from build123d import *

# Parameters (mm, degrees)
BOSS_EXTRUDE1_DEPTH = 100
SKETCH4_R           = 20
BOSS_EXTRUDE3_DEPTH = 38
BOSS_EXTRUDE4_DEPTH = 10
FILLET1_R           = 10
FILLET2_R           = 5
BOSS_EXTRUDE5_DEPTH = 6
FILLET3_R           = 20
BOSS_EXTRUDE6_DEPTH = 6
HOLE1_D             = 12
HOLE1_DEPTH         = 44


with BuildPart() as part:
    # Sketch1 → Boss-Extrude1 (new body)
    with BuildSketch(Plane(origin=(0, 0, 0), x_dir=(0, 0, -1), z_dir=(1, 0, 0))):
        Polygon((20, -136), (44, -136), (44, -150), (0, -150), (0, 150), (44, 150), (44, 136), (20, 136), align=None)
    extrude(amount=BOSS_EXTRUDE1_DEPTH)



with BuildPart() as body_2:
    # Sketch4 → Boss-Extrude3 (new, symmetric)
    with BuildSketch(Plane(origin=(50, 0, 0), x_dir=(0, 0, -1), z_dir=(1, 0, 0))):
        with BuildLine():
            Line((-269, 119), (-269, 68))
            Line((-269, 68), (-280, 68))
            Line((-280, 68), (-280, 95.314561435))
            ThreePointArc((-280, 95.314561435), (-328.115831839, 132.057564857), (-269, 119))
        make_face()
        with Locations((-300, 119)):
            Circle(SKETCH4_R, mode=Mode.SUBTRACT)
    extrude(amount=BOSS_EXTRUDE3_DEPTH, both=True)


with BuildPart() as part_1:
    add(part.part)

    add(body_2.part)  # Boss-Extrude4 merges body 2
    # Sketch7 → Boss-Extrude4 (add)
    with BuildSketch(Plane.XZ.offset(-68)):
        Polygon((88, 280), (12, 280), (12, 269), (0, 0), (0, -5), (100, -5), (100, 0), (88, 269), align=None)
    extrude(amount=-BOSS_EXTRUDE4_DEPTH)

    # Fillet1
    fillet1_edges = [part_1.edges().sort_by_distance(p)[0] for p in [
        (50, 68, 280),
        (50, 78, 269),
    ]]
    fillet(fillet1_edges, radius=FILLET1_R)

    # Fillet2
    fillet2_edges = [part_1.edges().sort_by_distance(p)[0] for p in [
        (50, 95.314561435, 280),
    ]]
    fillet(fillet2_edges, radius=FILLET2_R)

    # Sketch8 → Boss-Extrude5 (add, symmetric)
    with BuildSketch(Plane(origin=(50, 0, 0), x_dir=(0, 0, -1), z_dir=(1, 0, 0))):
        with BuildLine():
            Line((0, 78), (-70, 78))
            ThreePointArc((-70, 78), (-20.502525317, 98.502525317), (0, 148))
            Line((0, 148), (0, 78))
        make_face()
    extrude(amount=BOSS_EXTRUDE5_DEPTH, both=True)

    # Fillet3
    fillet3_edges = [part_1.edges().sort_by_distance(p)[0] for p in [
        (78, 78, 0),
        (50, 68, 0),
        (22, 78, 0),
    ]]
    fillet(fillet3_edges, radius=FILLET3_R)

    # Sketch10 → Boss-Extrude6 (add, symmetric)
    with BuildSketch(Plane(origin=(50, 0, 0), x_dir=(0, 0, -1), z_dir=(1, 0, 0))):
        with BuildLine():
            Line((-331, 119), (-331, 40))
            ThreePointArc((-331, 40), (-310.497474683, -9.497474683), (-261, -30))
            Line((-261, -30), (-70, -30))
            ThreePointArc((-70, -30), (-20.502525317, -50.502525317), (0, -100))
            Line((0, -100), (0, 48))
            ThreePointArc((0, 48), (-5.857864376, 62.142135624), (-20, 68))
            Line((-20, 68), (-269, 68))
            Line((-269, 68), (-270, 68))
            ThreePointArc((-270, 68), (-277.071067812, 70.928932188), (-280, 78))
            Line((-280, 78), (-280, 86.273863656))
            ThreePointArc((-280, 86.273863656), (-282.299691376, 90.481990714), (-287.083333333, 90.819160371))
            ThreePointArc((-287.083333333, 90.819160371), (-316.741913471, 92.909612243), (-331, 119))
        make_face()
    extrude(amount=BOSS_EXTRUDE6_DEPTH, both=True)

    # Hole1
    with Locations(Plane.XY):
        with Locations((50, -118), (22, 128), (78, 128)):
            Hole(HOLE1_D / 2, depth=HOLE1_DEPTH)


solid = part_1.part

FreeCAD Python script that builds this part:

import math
import FreeCAD as App
import Part
import Sketcher

V = App.Vector


def edges_at(feature, points):
    """Names of the edges that pass closest to the given points."""
    edges = feature.Shape.Edges
    near = lambda p: min(range(len(edges)), key=lambda i: edges[i].distToShape(Part.Vertex(*p))[0])
    return sorted({f"Edge{near(p) + 1}" for p in points})

doc = App.newDocument("Part")
body = doc.addObject("PartDesign::Body", "Body")

# Sketch on YZ plane
sketch1 = body.newObject("Sketcher::SketchObject", "Sketch")
sketch1.AttachmentSupport = (doc.getObject("YZ_Plane"), [""])
sketch1.MapMode = "FlatFace"
sketch1.addGeometry([
    Part.LineSegment(V(-136, -44, 0), V(-136, -20, 0)),  # 0
    Part.LineSegment(V(-136, -20, 0), V(136, -20, 0)),  # 1
    Part.LineSegment(V(136, -20, 0), V(136, -44, 0)),  # 2
    Part.LineSegment(V(136, -44, 0), V(150, -44, 0)),  # 3
    Part.LineSegment(V(150, -44, 0), V(150, 0, 0)),  # 4
    Part.LineSegment(V(150, 0, 0), V(-150, 0, 0)),  # 5
    Part.LineSegment(V(-150, 0, 0), V(-150, -44, 0)),  # 6
    Part.LineSegment(V(-150, -44, 0), V(-136, -44, 0)),  # 7
], False)
sketch1.addConstraint([
    Sketcher.Constraint("Coincident", 0, 2, 1, 1),
    Sketcher.Constraint("Coincident", 1, 2, 2, 1),
    Sketcher.Constraint("Coincident", 2, 2, 3, 1),
    Sketcher.Constraint("Coincident", 3, 2, 4, 1),
    Sketcher.Constraint("Coincident", 4, 2, 5, 1),
    Sketcher.Constraint("Coincident", 5, 2, 6, 1),
    Sketcher.Constraint("Coincident", 6, 2, 7, 1),
    Sketcher.Constraint("Coincident", 7, 2, 0, 1),
    Sketcher.Constraint("Vertical", 0),
    Sketcher.Constraint("Horizontal", 1),
    Sketcher.Constraint("Vertical", 2),
    Sketcher.Constraint("Horizontal", 3),
    Sketcher.Constraint("Vertical", 4),
    Sketcher.Constraint("Horizontal", 5),
    Sketcher.Constraint("Vertical", 6),
    Sketcher.Constraint("Horizontal", 7),
    Sketcher.Constraint("Symmetric", 4, 2, 5, 2, -1, 1),
    Sketcher.Constraint("Symmetric", 2, 2, 7, 2, -2),
    Sketcher.Constraint("DistanceX", 1, 1, 1, 2, 272.0),
    Sketcher.Constraint("DistanceX", 3, 1, 3, 2, 14.0),
    Sketcher.Constraint("DistanceY", 0, 1, 0, 2, 24.0),
    Sketcher.Constraint("DistanceY", 4, 1, 4, 2, 44.0),
])
pad1 = body.newObject("PartDesign::Pad", "Pad")
pad1.Profile = sketch1
pad1.Length = 100
body2 = doc.addObject("PartDesign::Body", "Body001")

# Sketch on YZ plane
sketch2 = body2.newObject("Sketcher::SketchObject", "Sketch001")
sketch2.AttachmentSupport = (doc.getObject("YZ_Plane001"), [""])
sketch2.MapMode = "FlatFace"
sketch2.AttachmentOffset = App.Placement(V(0, 0, 50), App.Rotation())
sketch2.addGeometry([
    Part.LineSegment(V(68, 269, 0), V(119, 269, 0)),  # 0
    Part.ArcOfCircle(Part.Circle(V(119, 300, 0), V(0, 0, 1), 31), math.radians(-90), math.radians(220.17777)),  # 1
    Part.LineSegment(V(95.314561, 280, 0), V(68, 280, 0)),  # 2
    Part.LineSegment(V(68, 280, 0), V(68, 269, 0)),  # 3
    Part.Circle(V(119, 300, 0), V(0, 0, 1), 20),  # 4
], False)
sketch2.addConstraint([
    Sketcher.Constraint("Tangent", 0, 2, 1, 1),
    Sketcher.Constraint("Coincident", 1, 2, 2, 1),
    Sketcher.Constraint("Coincident", 2, 2, 3, 1),
    Sketcher.Constraint("Coincident", 3, 2, 0, 1),
    Sketcher.Constraint("Horizontal", 0),
    Sketcher.Constraint("Horizontal", 2),
    Sketcher.Constraint("Vertical", 3),
    Sketcher.Constraint("Coincident", 4, 3, 1, 3),
    Sketcher.Constraint("Diameter", 4, 40.0),
    Sketcher.Constraint("Radius", 1, 31.0),
    Sketcher.Constraint("DistanceX", 0, 1, 0, 2, 51.0),
    Sketcher.Constraint("DistanceY", 3, 2, 3, 1, 11.0),
    Sketcher.Constraint("DistanceX", -1, 1, 1, 3, 119.0),
    Sketcher.Constraint("DistanceY", -1, 1, 1, 3, 300.0),
])
pad2 = body2.newObject("PartDesign::Pad", "Pad001")
pad2.Profile = sketch2
pad2.Length = 76
pad2.Midplane = True
body.AllowCompound = True
doc.recompute()

boolean = body.newObject("PartDesign::Boolean", "Boolean")
boolean.Type = "Fuse"
boolean.addObjects([body2])

# Sketch on XZ plane
sketch3 = body.newObject("Sketcher::SketchObject", "Sketch002")
sketch3.AttachmentSupport = (doc.getObject("XZ_Plane"), [""])
sketch3.MapMode = "FlatFace"
sketch3.AttachmentOffset = App.Placement(V(0, 0, -68), App.Rotation())
sketch3.addGeometry([
    Part.LineSegment(V(88, 280, 0), V(12, 280, 0)),  # 0
    Part.LineSegment(V(12, 280, 0), V(12, 269, 0)),  # 1
    Part.LineSegment(V(12, 269, 0), V(0, 0, 0)),  # 2
    Part.LineSegment(V(0, 0, 0), V(0, -5, 0)),  # 3
    Part.LineSegment(V(0, -5, 0), V(100, -5, 0)),  # 4
    Part.LineSegment(V(100, -5, 0), V(100, 0, 0)),  # 5
    Part.LineSegment(V(100, 0, 0), V(88, 269, 0)),  # 6
    Part.LineSegment(V(88, 269, 0), V(88, 280, 0)),  # 7
], False)
sketch3.addConstraint([
    Sketcher.Constraint("Coincident", 0, 2, 1, 1),
    Sketcher.Constraint("Coincident", 1, 2, 2, 1),
    Sketcher.Constraint("Coincident", 2, 2, 3, 1),
    Sketcher.Constraint("Coincident", 3, 2, 4, 1),
    Sketcher.Constraint("Coincident", 4, 2, 5, 1),
    Sketcher.Constraint("Coincident", 5, 2, 6, 1),
    Sketcher.Constraint("Coincident", 6, 2, 7, 1),
    Sketcher.Constraint("Coincident", 7, 2, 0, 1),
    Sketcher.Constraint("Horizontal", 0),
    Sketcher.Constraint("Vertical", 1),
    Sketcher.Constraint("Vertical", 3),
    Sketcher.Constraint("Horizontal", 4),
    Sketcher.Constraint("Vertical", 5),
    Sketcher.Constraint("Vertical", 7),
    Sketcher.Constraint("Coincident", 2, 2, -1, 1),
    Sketcher.Constraint("PointOnObject", 5, 2, -1),
    Sketcher.Constraint("Horizontal", 1, 2, 6, 2),
    Sketcher.Constraint("Equal", 2, 6),
    Sketcher.Constraint("DistanceX", 0, 2, 0, 1, 76.0),
    Sketcher.Constraint("DistanceX", 4, 1, 4, 2, 100.0),
    Sketcher.Constraint("DistanceY", 1, 2, 1, 1, 11.0),
    Sketcher.Constraint("DistanceY", 3, 2, 3, 1, 5.0),
    Sketcher.Constraint("DistanceY", -1, 1, 0, 2, 280.0),
])
pad3 = body.newObject("PartDesign::Pad", "Pad002")
pad3.Profile = sketch3
pad3.Length = 10
pad3.Reversed = True
doc.recompute()

fillet = body.newObject("PartDesign::Fillet", "Fillet")
fillet.Base = (pad3, edges_at(pad3, [(50, 68, 280), (50, 78, 269)]))
fillet.Radius = 10
doc.recompute()

fillet2 = body.newObject("PartDesign::Fillet", "Fillet001")
fillet2.Base = (fillet, edges_at(fillet, [(50, 95.315, 280)]))
fillet2.Radius = 5

# Sketch on YZ plane
sketch4 = body.newObject("Sketcher::SketchObject", "Sketch003")
sketch4.AttachmentSupport = (doc.getObject("YZ_Plane"), [""])
sketch4.MapMode = "FlatFace"
sketch4.AttachmentOffset = App.Placement(V(0, 0, 50), App.Rotation())
sketch4.addGeometry([
    Part.LineSegment(V(78, 70, 0), V(78, 0, 0)),
    Part.LineSegment(V(78, 0, 0), V(148, 0, 0)),
    Part.ArcOfCircle(Part.Circle(V(148, 70, 0), V(0, 0, 1), 70), math.radians(180), math.radians(270)),
], False)
sketch4.addConstraint([
    Sketcher.Constraint("Coincident", 0, 2, 1, 1),
    Sketcher.Constraint("Tangent", 1, 2, 2, 2),
    Sketcher.Constraint("Tangent", 2, 1, 0, 1),
    Sketcher.Constraint("Vertical", 0),
    Sketcher.Constraint("Horizontal", 1),
    Sketcher.Constraint("PointOnObject", 0, 2, -1),
    Sketcher.Constraint("Radius", 2, 70.0),
    Sketcher.Constraint("DistanceX", -1, 1, 2, 3, 148.0),
])
pad4 = body.newObject("PartDesign::Pad", "Pad003")
pad4.Profile = sketch4
pad4.Length = 12
pad4.Midplane = True
doc.recompute()

fillet3 = body.newObject("PartDesign::Fillet", "Fillet002")
fillet3.Base = (pad4, edges_at(pad4, [(78, 78, 0), (50, 68, 0), (22, 78, 0)]))
fillet3.Radius = 20

# Sketch on YZ plane
sketch5 = body.newObject("Sketcher::SketchObject", "Sketch004")
sketch5.AttachmentSupport = (doc.getObject("YZ_Plane"), [""])
sketch5.MapMode = "FlatFace"
sketch5.AttachmentOffset = App.Placement(V(0, 0, 50), App.Rotation())
sketch5.addGeometry([
    Part.LineSegment(V(119, 331, 0), V(40, 331, 0)),  # 0
    Part.ArcOfCircle(Part.Circle(V(40, 261, 0), V(0, 0, 1), 70), math.radians(90), math.radians(180)),  # 1
    Part.LineSegment(V(-30, 261, 0), V(-30, 70, 0)),  # 2
    Part.ArcOfCircle(Part.Circle(V(-100, 70, 0), V(0, 0, 1), 70), math.radians(-90), math.radians(0)),  # 3
    Part.LineSegment(V(-100, 0, 0), V(48, 0, 0)),  # 4
    Part.ArcOfCircle(Part.Circle(V(48, 20, 0), V(0, 0, 1), 20), math.radians(-90), math.radians(0)),  # 5
    Part.LineSegment(V(68, 20, 0), V(68, 270, 0)),  # 6
    Part.ArcOfCircle(Part.Circle(V(78, 270, 0), V(0, 0, 1), 10), math.radians(90), math.radians(180)),  # 7
    Part.LineSegment(V(78, 280, 0), V(86.273864, 280, 0)),  # 8
    Part.ArcOfCircle(Part.Circle(V(86.273864, 285, 0), V(0, 0, 1), 5), math.radians(-90), math.radians(24.624318)),  # 9
    Part.ArcOfCircle(Part.Circle(V(119, 300, 0), V(0, 0, 1), 31), math.radians(90), math.radians(204.624318)),  # 10
], False)
sketch5.addConstraint([
    Sketcher.Constraint("Tangent", 0, 2, 1, 1),
    Sketcher.Constraint("Tangent", 1, 2, 2, 1),
    Sketcher.Constraint("Tangent", 2, 2, 3, 2),
    Sketcher.Constraint("Tangent", 3, 1, 4, 1),
    Sketcher.Constraint("Tangent", 4, 2, 5, 1),
    Sketcher.Constraint("Tangent", 5, 2, 6, 1),
    Sketcher.Constraint("Tangent", 6, 2, 7, 2),
    Sketcher.Constraint("Tangent", 7, 1, 8, 1),
    Sketcher.Constraint("Tangent", 8, 2, 9, 1),
    Sketcher.Constraint("Tangent", 9, 2, 10, 2),
    Sketcher.Constraint("Tangent", 10, 1, 0, 1),
    Sketcher.Constraint("Horizontal", 0),
    Sketcher.Constraint("Vertical", 2),
    Sketcher.Constraint("Horizontal", 4),
    Sketcher.Constraint("Vertical", 6),
    Sketcher.Constraint("Horizontal", 8),
    Sketcher.Constraint("Equal", 1, 3),
    Sketcher.Constraint("PointOnObject", 3, 1, -1),
    Sketcher.Constraint("Radius", 1, 70.0),
    Sketcher.Constraint("Radius", 5, 20.0),
    Sketcher.Constraint("Radius", 7, 10.0),
    Sketcher.Constraint("Radius", 9, 5.0),
    Sketcher.Constraint("Radius", 10, 31.0),
    Sketcher.Constraint("DistanceX", 0, 2, 0, 1, 79.0),
    Sketcher.Constraint("DistanceX", 4, 1, 4, 2, 148.0),
    Sketcher.Constraint("DistanceY", 2, 2, 2, 1, 191.0),
    Sketcher.Constraint("DistanceY", 6, 1, 6, 2, 250.0),
    Sketcher.Constraint("DistanceX", -1, 1, 1, 3, 40.0),
])
pad5 = body.newObject("PartDesign::Pad", "Pad004")
pad5.Profile = sketch5
pad5.Length = 12
pad5.Midplane = True

# Sketch on XY plane
sketch6 = body.newObject("Sketcher::SketchObject", "Sketch005")
sketch6.AttachmentSupport = (doc.getObject("XY_Plane"), [""])
sketch6.MapMode = "FlatFace"
sketch6.addGeometry([
    Part.Circle(V(50, -118, 0), V(0, 0, 1), 6),
    Part.Circle(V(22, 128, 0), V(0, 0, 1), 6),
    Part.Circle(V(78, 128, 0), V(0, 0, 1), 6),
], False)
sketch6.addConstraint([
    Sketcher.Constraint("Equal", 0, 1),
    Sketcher.Constraint("Equal", 1, 2),
    Sketcher.Constraint("Horizontal", 1, 3, 2, 3),
    Sketcher.Constraint("Diameter", 0, 12.0),
    Sketcher.Constraint("DistanceX", -1, 1, 0, 3, 50.0),
    Sketcher.Constraint("DistanceY", 0, 3, -1, 1, 118.0),
    Sketcher.Constraint("DistanceX", -1, 1, 1, 3, 22.0),
    Sketcher.Constraint("DistanceY", -1, 1, 1, 3, 128.0),
    Sketcher.Constraint("DistanceX", -1, 1, 2, 3, 78.0),
])
doc.recompute()
hole = body.newObject("PartDesign::Hole", "Hole")
hole.Profile = sketch6
hole.ThreadType = "None"
hole.Diameter = 12
hole.DepthType = "Dimension"
hole.Depth = 44
hole.DrillPoint = "Flat"

doc.recompute()
